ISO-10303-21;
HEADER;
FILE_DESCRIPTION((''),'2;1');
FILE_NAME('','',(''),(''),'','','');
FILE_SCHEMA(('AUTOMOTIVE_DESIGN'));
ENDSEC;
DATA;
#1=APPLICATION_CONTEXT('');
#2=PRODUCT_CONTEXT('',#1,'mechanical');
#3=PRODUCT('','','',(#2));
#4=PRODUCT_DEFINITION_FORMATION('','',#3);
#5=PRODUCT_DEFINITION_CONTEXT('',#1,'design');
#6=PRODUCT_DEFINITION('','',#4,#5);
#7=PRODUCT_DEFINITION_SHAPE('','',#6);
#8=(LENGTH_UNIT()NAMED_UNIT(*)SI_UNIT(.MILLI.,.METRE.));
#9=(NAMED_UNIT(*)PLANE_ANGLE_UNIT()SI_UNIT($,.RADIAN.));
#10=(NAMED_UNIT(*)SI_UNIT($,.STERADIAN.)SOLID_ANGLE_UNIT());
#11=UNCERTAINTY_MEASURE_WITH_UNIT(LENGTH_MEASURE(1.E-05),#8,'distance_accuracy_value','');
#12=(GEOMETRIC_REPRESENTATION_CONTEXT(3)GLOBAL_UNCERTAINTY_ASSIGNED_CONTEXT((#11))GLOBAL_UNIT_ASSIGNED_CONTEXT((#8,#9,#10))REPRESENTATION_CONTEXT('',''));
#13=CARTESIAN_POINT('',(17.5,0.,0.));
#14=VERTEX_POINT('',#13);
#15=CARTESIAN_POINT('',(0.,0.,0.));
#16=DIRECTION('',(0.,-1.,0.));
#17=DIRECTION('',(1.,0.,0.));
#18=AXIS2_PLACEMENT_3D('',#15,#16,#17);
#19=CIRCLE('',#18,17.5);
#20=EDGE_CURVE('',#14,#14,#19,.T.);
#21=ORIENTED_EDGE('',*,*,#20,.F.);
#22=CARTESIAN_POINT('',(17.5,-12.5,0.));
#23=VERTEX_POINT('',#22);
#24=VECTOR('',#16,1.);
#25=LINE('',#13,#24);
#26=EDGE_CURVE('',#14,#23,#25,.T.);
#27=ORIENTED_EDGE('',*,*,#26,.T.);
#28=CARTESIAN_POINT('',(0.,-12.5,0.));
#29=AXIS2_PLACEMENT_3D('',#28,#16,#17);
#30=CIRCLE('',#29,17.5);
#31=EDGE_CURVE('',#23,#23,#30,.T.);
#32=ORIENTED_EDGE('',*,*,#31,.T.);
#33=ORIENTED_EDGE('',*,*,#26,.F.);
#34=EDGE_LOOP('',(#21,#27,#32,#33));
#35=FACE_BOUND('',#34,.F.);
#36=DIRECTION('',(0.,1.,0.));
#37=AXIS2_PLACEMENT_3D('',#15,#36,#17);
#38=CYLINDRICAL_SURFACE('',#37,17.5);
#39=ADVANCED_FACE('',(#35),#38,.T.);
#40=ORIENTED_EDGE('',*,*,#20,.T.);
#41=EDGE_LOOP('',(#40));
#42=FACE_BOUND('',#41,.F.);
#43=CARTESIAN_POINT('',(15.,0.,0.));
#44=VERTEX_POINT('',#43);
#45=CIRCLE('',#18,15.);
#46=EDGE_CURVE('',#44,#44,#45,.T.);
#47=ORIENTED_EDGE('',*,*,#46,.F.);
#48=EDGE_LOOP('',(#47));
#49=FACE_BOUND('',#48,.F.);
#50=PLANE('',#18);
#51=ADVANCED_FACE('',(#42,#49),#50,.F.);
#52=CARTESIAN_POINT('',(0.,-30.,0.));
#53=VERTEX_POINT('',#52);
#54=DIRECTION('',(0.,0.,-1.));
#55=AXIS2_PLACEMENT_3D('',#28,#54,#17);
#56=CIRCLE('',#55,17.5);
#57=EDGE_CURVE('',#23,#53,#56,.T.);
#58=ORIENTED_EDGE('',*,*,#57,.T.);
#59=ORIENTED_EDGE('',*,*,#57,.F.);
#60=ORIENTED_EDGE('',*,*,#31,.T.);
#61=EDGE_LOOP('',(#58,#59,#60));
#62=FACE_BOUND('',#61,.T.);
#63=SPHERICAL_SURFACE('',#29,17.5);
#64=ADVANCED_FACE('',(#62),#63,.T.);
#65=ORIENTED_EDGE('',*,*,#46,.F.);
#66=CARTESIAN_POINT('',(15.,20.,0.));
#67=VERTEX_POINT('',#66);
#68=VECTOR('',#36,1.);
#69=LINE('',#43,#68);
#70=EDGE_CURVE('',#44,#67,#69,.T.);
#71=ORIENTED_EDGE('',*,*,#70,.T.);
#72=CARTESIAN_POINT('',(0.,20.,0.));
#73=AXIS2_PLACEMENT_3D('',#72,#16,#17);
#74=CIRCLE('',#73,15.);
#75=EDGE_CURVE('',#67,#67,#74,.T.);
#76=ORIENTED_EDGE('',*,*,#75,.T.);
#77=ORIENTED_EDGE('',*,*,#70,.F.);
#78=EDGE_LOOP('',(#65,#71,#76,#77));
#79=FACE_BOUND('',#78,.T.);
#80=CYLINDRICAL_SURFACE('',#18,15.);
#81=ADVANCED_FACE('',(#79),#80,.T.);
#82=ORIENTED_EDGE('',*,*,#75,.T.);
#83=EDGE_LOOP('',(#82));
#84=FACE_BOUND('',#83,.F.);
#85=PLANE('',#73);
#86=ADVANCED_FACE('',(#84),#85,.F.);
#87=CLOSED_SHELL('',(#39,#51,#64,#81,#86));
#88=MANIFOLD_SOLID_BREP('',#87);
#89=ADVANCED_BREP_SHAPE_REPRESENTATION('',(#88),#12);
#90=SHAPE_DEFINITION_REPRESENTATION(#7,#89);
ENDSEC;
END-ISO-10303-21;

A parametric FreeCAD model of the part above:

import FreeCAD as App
import Part
import Sketcher

V = App.Vector
Q = App.Units.Quantity


def edges_at(feature, points):
    """Names of the edges that pass closest to the given points."""
    edges = feature.Shape.Edges
    near = lambda p: min(range(len(edges)), key=lambda i: edges[i].distToShape(Part.Vertex(*p))[0])
    return sorted({f"Edge{near(p) + 1}" for p in points})

doc = App.newDocument("Part")
body = doc.addObject("PartDesign::Body", "Body")

# Sketch on XZ plane
sketch1 = body.newObject("Sketcher::SketchObject", "Sketch")
sketch1.AttachmentSupport = (doc.getObject("XZ_Plane"), [""])
sketch1.MapMode = "FlatFace"
sketch1.addGeometry(Part.Circle(V(0, 0, 0), V(0, 0, 1), 17.5), False)
sketch1.addConstraint([
    Sketcher.Constraint("Coincident", 0, 3, -1, 1),
    Sketcher.Constraint("Diameter", 0, Q("35 mm")),
])
pad1 = body.newObject("PartDesign::Pad", "Pad")
pad1.Profile = sketch1
pad1.Length = 30

# Sketch on XZ plane
sketch2 = body.newObject("Sketcher::SketchObject", "Sketch001")
sketch2.AttachmentSupport = (doc.getObject("XZ_Plane"), [""])
sketch2.MapMode = "FlatFace"
sketch2.addGeometry(Part.Circle(V(0, 0, 0), V(0, 0, 1), 15), False)
sketch2.addConstraint([
    Sketcher.Constraint("Coincident", 0, 3, -1, 1),
    Sketcher.Constraint("Diameter", 0, Q("30 mm")),
])
pad2 = body.newObject("PartDesign::Pad", "Pad001")
pad2.Profile = sketch2
pad2.Length = 20
pad2.Reversed = True
doc.recompute()

fillet = body.newObject("PartDesign::Fillet", "Fillet")
fillet.Base = (pad2, edges_at(pad2, [(-17.5, -30, 0)]))
fillet.Radius = 17.5

doc.recompute()
